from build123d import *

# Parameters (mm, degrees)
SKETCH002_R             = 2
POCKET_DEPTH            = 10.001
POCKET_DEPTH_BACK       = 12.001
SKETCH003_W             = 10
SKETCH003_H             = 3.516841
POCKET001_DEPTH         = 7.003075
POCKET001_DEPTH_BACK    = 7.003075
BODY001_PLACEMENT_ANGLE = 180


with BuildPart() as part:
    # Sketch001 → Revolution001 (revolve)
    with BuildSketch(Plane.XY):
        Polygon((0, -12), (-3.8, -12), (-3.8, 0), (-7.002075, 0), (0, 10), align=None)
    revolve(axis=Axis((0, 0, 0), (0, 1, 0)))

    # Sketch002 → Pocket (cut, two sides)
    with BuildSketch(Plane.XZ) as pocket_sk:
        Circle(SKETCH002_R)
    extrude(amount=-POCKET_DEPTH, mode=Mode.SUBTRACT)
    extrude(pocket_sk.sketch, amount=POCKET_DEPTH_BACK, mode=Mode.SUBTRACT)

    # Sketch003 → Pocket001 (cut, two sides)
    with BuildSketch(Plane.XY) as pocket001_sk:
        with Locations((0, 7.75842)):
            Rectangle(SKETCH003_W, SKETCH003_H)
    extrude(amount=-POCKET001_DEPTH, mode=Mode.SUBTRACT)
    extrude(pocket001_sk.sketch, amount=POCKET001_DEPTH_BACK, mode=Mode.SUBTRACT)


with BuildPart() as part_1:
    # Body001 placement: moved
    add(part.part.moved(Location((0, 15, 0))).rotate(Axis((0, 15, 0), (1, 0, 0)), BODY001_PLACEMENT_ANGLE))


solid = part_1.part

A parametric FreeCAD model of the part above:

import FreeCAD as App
import Part
import Sketcher

V = App.Vector
Q = App.Units.Quantity


def add_polygon(sketch, points):
    """Adds a closed chain of lines whose ends are joined by coincident constraints."""
    first, n = sketch.GeometryCount, len(points)
    for a, b in zip(points, points[1:] + points[:1]):
        sketch.addGeometry(Part.LineSegment(App.Vector(*a, 0), App.Vector(*b, 0)), False)
    for i in range(n):
        sketch.addConstraint(Sketcher.Constraint("Coincident", first + i, 2, first + (i + 1) % n, 1))

doc = App.newDocument("Part")
body = doc.addObject("PartDesign::Body", "Body")

# Sketch on XY plane
sketch1 = body.newObject("Sketcher::SketchObject", "Sketch")
sketch1.AttachmentSupport = (doc.getObject("XY_Plane"), [""])
sketch1.MapMode = "FlatFace"
add_polygon(sketch1, [(-3.8, -12), (0, -12), (0, 10), (-7, 0), (-3.8, 0)])  # lines 0-4
sketch1.addConstraint(Sketcher.Constraint("Horizontal", 0))
sketch1.addConstraint(Sketcher.Constraint("Vertical", 1))
sketch1.addConstraint(Sketcher.Constraint("Horizontal", 3))
sketch1.addConstraint(Sketcher.Constraint("Vertical", 4))
sketch1.addConstraint(Sketcher.Constraint("PointOnObject", 0, 2, -2))
sketch1.addConstraint(Sketcher.Constraint("PointOnObject", 2, 2, -1))
sketch1.addConstraint(Sketcher.Constraint("DistanceY", 1, 1, 1, 2, 22.0))
sketch1.addConstraint(Sketcher.Constraint("DistanceY", 4, 2, 4, 1, 12.0))
sketch1.addConstraint(Sketcher.Constraint("Angle", 2, Q("-124.999999 deg")))
sketch1.addConstraint(Sketcher.Constraint("DistanceX", 0, 1, 0, 2, 3.8))
revolution = body.newObject("PartDesign::Revolution", "Revolution")
revolution.Profile = sketch1
revolution.ReferenceAxis = (sketch1, ["V_Axis"])
revolution.Angle = 360

# Sketch on XZ plane
sketch2 = body.newObject("Sketcher::SketchObject", "Sketch001")
sketch2.AttachmentSupport = (doc.getObject("XZ_Plane"), [""])
sketch2.MapMode = "FlatFace"
sketch2.addGeometry(Part.Circle(V(0, 0, 0), V(0, 0, 1), 2), False)
sketch2.addConstraint(Sketcher.Constraint("Coincident", 0, 3, -1, 1))
sketch2.addConstraint(Sketcher.Constraint("Diameter", 0, 4.0))
pocket1 = body.newObject("PartDesign::Pocket", "Pocket")
pocket1.Profile = sketch2
pocket1.Type = "ThroughAll"
pocket1.Midplane = True

# Sketch on XY plane
sketch3 = body.newObject("Sketcher::SketchObject", "Sketch002")
sketch3.AttachmentSupport = (doc.getObject("XY_Plane"), [""])
sketch3.MapMode = "FlatFace"
add_polygon(sketch3, [(-5, 9.5), (-5, 6), (5, 6), (5, 9.5)])  # lines 0-3
sketch3.addConstraint(Sketcher.Constraint("Vertical", 0))
sketch3.addConstraint(Sketcher.Constraint("Horizontal", 1))
sketch3.addConstraint(Sketcher.Constraint("Vertical", 2))
sketch3.addConstraint(Sketcher.Constraint("Horizontal", 3))
sketch3.addConstraint(Sketcher.Constraint("DistanceX", 1, 1, 1, 2, 10.0))
sketch3.addConstraint(Sketcher.Constraint("DistanceX", 0, 2, -1, 1, 5.0))
sketch3.addConstraint(Sketcher.Constraint("DistanceY", -1, 1, 0, 2, 6.0))
sketch3.addConstraint(Sketcher.Constraint("DistanceY", 0, 2, 0, 1, 3.516841))
pocket2 = body.newObject("PartDesign::Pocket", "Pocket001")
pocket2.Profile = sketch3
pocket2.Type = "ThroughAll"
pocket2.Midplane = True
body2 = doc.addObject("PartDesign::Body", "Body001")
doc.recompute()

body.Placement = App.Placement(V(0, 15, 0), App.Rotation(V(1, 0, 0), 180))
boolean = body2.newObject("PartDesign::Boolean", "Boolean")
boolean.Type = "Fuse"
boolean.addObjects([body])

doc.recompute()
